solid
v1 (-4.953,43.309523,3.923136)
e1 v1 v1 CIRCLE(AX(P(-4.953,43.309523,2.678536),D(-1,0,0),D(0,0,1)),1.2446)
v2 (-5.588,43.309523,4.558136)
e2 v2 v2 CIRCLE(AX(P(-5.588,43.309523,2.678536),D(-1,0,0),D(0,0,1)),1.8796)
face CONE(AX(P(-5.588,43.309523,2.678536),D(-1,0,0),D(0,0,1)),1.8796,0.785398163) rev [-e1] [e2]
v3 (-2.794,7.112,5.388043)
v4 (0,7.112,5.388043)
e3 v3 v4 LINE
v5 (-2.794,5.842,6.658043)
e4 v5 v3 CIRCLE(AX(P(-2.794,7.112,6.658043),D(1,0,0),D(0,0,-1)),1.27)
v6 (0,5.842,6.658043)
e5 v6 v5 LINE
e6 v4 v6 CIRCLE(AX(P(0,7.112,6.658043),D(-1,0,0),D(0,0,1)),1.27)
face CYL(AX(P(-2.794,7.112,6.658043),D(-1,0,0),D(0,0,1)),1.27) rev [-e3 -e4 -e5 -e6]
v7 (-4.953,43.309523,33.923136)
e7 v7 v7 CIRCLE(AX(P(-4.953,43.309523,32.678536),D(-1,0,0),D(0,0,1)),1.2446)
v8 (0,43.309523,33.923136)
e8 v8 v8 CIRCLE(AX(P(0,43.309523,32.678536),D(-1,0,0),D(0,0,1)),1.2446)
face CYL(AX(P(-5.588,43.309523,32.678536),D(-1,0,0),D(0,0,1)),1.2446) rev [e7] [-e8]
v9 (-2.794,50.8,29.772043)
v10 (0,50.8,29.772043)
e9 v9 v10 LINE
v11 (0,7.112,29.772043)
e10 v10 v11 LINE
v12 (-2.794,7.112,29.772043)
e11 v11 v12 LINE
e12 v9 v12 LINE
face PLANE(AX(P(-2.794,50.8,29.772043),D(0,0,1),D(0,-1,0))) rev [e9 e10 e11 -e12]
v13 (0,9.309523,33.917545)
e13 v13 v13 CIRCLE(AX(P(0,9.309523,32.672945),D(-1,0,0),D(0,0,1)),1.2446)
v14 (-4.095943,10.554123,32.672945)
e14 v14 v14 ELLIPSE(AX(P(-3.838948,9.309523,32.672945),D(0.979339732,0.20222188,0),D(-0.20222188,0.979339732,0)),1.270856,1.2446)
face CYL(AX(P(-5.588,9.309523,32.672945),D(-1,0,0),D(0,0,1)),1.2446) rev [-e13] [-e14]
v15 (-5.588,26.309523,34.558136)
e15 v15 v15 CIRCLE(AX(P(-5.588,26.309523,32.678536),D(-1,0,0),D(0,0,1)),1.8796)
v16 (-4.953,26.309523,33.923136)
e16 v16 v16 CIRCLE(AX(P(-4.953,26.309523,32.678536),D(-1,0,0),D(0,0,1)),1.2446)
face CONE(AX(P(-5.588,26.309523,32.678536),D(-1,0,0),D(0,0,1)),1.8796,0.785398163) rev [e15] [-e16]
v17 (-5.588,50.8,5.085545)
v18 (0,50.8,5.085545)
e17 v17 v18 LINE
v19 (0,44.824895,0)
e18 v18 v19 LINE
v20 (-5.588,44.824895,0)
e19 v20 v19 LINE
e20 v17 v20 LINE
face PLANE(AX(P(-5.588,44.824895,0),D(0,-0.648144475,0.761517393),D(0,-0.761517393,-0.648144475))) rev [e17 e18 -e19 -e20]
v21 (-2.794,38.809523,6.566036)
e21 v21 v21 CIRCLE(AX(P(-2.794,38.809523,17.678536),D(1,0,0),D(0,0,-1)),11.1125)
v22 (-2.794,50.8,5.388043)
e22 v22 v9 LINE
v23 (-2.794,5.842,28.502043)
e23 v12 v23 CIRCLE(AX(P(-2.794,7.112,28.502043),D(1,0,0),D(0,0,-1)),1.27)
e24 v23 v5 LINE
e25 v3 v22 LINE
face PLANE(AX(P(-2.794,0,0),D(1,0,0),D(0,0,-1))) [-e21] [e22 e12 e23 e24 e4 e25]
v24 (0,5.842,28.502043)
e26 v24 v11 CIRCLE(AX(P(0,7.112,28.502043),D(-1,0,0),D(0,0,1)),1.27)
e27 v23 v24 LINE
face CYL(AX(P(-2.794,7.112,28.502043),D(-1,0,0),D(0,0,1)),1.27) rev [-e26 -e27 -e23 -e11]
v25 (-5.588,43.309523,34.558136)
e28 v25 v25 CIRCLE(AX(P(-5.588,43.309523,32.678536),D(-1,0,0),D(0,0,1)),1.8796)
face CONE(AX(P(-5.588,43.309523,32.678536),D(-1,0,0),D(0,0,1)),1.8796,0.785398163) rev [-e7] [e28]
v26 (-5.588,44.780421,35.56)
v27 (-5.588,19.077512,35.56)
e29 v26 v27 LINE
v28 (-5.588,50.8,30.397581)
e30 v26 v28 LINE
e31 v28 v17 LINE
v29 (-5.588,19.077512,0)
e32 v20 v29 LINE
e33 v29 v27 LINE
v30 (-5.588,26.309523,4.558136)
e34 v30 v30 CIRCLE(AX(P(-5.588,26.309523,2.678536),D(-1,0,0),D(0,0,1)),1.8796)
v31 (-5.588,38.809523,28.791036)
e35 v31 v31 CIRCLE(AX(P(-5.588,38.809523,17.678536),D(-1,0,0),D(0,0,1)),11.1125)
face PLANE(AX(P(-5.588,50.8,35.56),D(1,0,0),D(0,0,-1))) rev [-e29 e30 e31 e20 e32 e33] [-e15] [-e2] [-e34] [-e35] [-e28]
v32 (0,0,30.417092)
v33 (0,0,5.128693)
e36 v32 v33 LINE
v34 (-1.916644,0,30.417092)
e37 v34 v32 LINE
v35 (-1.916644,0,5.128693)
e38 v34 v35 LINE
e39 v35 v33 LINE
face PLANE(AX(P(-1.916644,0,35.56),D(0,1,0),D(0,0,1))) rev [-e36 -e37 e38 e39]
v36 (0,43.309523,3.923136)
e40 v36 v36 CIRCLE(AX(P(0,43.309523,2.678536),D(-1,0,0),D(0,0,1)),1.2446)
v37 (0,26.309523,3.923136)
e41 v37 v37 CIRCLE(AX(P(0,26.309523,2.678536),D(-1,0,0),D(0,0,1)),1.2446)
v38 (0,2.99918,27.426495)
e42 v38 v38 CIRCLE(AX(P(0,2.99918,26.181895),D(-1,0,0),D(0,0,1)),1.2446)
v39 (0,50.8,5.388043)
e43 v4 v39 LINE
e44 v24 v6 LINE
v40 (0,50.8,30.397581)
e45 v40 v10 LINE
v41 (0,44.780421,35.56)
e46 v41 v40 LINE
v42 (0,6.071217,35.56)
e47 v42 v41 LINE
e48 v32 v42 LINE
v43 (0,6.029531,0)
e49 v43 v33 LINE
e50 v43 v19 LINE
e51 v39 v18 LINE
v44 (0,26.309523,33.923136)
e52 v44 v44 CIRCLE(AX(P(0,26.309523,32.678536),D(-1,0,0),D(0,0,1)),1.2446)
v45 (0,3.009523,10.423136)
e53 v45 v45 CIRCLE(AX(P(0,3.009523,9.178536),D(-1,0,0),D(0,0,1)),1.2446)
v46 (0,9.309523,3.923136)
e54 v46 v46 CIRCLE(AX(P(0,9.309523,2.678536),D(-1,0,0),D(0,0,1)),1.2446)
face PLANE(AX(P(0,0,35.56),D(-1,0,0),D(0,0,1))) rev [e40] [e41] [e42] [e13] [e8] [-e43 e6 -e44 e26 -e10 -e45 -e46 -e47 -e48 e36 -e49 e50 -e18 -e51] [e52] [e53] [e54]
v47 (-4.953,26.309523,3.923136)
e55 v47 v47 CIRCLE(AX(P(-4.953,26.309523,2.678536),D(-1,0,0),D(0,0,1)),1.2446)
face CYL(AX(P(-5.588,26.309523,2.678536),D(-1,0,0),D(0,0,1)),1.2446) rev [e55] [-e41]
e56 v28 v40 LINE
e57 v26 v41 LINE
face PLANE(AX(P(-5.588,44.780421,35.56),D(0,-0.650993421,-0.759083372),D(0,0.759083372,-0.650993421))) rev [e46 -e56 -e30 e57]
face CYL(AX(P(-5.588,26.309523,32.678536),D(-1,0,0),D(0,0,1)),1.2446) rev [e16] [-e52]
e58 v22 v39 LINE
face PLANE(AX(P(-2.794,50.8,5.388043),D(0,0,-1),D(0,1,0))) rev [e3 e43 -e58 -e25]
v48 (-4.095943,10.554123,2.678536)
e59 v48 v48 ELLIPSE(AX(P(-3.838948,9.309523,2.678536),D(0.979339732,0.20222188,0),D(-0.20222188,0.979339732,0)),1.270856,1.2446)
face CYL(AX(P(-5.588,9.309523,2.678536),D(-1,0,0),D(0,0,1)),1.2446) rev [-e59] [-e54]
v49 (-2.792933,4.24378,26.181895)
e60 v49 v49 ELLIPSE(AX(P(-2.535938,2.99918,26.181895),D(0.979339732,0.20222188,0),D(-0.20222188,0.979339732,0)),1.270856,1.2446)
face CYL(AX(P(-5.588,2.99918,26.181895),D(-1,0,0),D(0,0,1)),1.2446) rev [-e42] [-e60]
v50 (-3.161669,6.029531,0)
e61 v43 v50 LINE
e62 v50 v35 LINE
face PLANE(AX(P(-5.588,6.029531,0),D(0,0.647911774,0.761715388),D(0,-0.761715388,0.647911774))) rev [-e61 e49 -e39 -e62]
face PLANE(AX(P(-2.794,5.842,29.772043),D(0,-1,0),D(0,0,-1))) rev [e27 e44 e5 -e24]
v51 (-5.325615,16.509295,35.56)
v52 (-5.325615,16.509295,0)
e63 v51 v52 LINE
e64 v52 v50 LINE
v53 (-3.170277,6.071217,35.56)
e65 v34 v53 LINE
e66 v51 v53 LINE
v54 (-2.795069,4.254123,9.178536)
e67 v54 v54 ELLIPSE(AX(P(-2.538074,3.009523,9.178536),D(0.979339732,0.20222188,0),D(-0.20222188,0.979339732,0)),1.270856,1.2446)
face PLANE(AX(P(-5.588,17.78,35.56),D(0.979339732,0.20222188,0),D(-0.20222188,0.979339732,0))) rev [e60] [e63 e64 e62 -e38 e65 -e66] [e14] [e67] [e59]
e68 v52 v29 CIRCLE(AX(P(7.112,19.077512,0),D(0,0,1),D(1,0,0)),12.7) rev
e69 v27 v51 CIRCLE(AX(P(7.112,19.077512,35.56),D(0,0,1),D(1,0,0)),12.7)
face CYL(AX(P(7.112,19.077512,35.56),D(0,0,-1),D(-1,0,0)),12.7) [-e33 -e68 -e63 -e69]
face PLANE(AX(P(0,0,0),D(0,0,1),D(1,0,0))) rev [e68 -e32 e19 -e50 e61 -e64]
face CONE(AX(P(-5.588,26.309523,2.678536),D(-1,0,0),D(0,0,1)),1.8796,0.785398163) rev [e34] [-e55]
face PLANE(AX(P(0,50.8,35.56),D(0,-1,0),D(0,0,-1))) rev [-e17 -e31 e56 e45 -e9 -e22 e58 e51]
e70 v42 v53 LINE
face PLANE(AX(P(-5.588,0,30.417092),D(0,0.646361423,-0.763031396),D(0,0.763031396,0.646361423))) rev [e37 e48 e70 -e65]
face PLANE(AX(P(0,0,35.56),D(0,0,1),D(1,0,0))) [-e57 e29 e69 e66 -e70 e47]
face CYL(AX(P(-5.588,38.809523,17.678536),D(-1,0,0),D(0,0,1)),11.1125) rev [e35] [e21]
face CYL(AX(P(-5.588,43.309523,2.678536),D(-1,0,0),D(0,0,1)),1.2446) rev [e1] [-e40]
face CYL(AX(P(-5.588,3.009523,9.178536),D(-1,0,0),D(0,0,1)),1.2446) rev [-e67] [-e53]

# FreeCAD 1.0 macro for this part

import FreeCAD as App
import Part
import Sketcher

V = App.Vector
Q = App.Units.Quantity


def edges_at(feature, points):
    """Names of the edges that pass closest to the given points."""
    edges = feature.Shape.Edges
    near = lambda p: min(range(len(edges)), key=lambda i: edges[i].distToShape(Part.Vertex(*p))[0])
    return sorted({f"Edge{near(p) + 1}" for p in points})

doc = App.newDocument("Part")
params = doc.addObject("Spreadsheet::Sheet", "Params")
for row, (alias, value) in enumerate([
    ("sketch1_height", "2 in"),
    ("sketch1_height2", "1.3 in"),
    ("sketch1_width", "0.22 in"),
    ("pad1_length", "1.4 in"),
    ("fillet_radius", "0.5 in"),
    ("sketch2_width", "1.77 in"),
    ("sketch2_height", "0.96 in"),
    ("pocket1_length", "0.11 in"),
    ("fillet2_radius", "0.05 in"),
    ("sketch5_diameter", "0.875 in"),
    ("hole_diameter", "0.875 in"),
    ("sketch6_diameter", "0.098 in"),
    ("hole2_diameter", "0.098 in"),
    ("hole2_csink_diameter", "0.148 in"),
], start=1):
    params.set(f"A{row}", alias)
    params.set(f"B{row}", "=" + value)
    params.setAlias(f"B{row}", alias)

body = doc.addObject("PartDesign::Body", "Body")

sketch1 = body.newObject("Sketcher::SketchObject", "Sketch")
sketch1.AttachmentSupport = (doc.getObject("XY_Plane"), [""])
sketch1.MapMode = "FlatFace"
sketch1.addGeometry([
    Part.LineSegment(V(0, 0, 0), V(0, 50.8, 0)),
    Part.LineSegment(V(0, 50.8, 0), V(-5.6, 50.8, 0)),
    Part.LineSegment(V(-5.6, 50.8, 0), V(-5.6, 17.8, 0)),
    Part.LineSegment(V(-5.6, 17.8, 0), V(-1.9, 0, 0)),
    Part.LineSegment(V(-1.9, 0, 0), V(0, 0, 0)),
], False)
sketch1.addConstraint([
    Sketcher.Constraint("Coincident", 0, 2, 1, 1),
    Sketcher.Constraint("Coincident", 1, 2, 2, 1),
    Sketcher.Constraint("Coincident", 2, 2, 3, 1),
    Sketcher.Constraint("Coincident", 3, 2, 4, 1),
    Sketcher.Constraint("Coincident", 4, 2, 0, 1),
    Sketcher.Constraint("Vertical", 0),
    Sketcher.Constraint("Horizontal", 1),
    Sketcher.Constraint("Vertical", 2),
    Sketcher.Constraint("Horizontal", 4),
    Sketcher.Constraint("Coincident", 4, 2, -1, 1),
    Sketcher.Constraint("DistanceY", 0, 1, 0, 2, Q("2 in")),
    Sketcher.Constraint("DistanceY", 2, 2, 2, 1, Q("1.3 in")),
    Sketcher.Constraint("DistanceX", 1, 2, 1, 1, Q("0.22 in")),
    Sketcher.Constraint("Distance", 3, Q("18.155089 mm")),
])
sketch1.setExpression("Constraints[10]", "Params.sketch1_height")
sketch1.setExpression("Constraints[11]", "Params.sketch1_height2")
sketch1.setExpression("Constraints[12]", "Params.sketch1_width")
pad1 = body.newObject("PartDesign::Pad", "Pad")
pad1.Profile = sketch1
pad1.setExpression("Length", "Params.pad1_length")
doc.recompute()

fillet = body.newObject("PartDesign::Fillet", "Fillet")
fillet.Base = (pad1, edges_at(pad1, [(-5.588, 17.78, 17.78)]))
fillet.setExpression("Radius", "Params.fillet_radius")

sketch2 = body.newObject("Sketcher::SketchObject", "Sketch001")
sketch2.AttachmentSupport = (doc.getObject("YZ_Plane"), [""])
sketch2.MapMode = "FlatFace"
sketch2.addGeometry([
    Part.LineSegment(V(51, 30, 0), V(6, 30, 0)),
    Part.LineSegment(V(6, 30, 0), V(6, 5, 0)),
    Part.LineSegment(V(6, 5, 0), V(51, 5, 0)),
    Part.LineSegment(V(51, 5, 0), V(51, 30, 0)),
], False)
sketch2.addConstraint([
    Sketcher.Constraint("Coincident", 0, 2, 1, 1),
    Sketcher.Constraint("Coincident", 1, 2, 2, 1),
    Sketcher.Constraint("Coincident", 2, 2, 3, 1),
    Sketcher.Constraint("Coincident", 3, 2, 0, 1),
    Sketcher.Constraint("Horizontal", 0),
    Sketcher.Constraint("Vertical", 1),
    Sketcher.Constraint("Horizontal", 2),
    Sketcher.Constraint("Vertical", 3),
    Sketcher.Constraint("DistanceX", -1, 1, 2, 2, Q("2 in")),
    Sketcher.Constraint("DistanceX", 0, 2, 0, 1, Q("1.77 in")),
    Sketcher.Constraint("DistanceY", 1, 2, 1, 1, Q("0.96 in")),
    Sketcher.Constraint("DistanceY", -1, 1, 0, 2, Q("29.772043 mm")),
])
sketch2.setExpression("Constraints[9]", "Params.sketch2_width")
sketch2.setExpression("Constraints[10]", "Params.sketch2_height")
pocket1 = body.newObject("PartDesign::Pocket", "Pocket")
pocket1.Profile = sketch2
pocket1.setExpression("Length", "Params.pocket1_length")
doc.recompute()

fillet2 = body.newObject("PartDesign::Fillet", "Fillet001")
fillet2.Base = (pocket1, edges_at(pocket1, [(-1.397, 5.842, 29.772), (-1.397, 5.842, 5.388)]))
fillet2.setExpression("Radius", "Params.fillet2_radius")

sketch3 = body.newObject("Sketcher::SketchObject", "Sketch002")
sketch3.AttachmentSupport = (doc.getObject("YZ_Plane"), [""])
sketch3.MapMode = "FlatFace"
sketch3.addGeometry([
    Part.LineSegment(V(45, 36, 0), V(51, 30, 0)),
    Part.LineSegment(V(51, 30, 0), V(51, 36, 0)),
    Part.LineSegment(V(51, 36, 0), V(45, 36, 0)),
], False)
sketch3.addConstraint([
    Sketcher.Constraint("Coincident", 0, 2, 1, 1),
    Sketcher.Constraint("Coincident", 1, 2, 2, 1),
    Sketcher.Constraint("Coincident", 2, 2, 0, 1),
    Sketcher.Constraint("Vertical", 1),
    Sketcher.Constraint("Horizontal", 2),
    Sketcher.Constraint("DistanceX", -1, 1, 0, 2, Q("2 in")),
    Sketcher.Constraint("DistanceY", -1, 1, 1, 2, Q("1.4 in")),
    Sketcher.Constraint("DistanceX", 2, 2, 2, 1, Q("6.019579 mm")),
    Sketcher.Constraint("DistanceY", 1, 1, 1, 2, Q("5.162419 mm")),
])
pocket2 = body.newObject("PartDesign::Pocket", "Pocket001")
pocket2.Profile = sketch3
pocket2.Type = "ThroughAll"

sketch4 = body.newObject("Sketcher::SketchObject", "Sketch003")
sketch4.AttachmentSupport = (doc.getObject("YZ_Plane"), [""])
sketch4.MapMode = "FlatFace"
sketch4.addGeometry([
    Part.LineSegment(V(51, 0, 0), V(51, 5, 0)),
    Part.LineSegment(V(51, 5, 0), V(45, 0, 0)),
    Part.LineSegment(V(45, 0, 0), V(51, 0, 0)),
    Part.LineSegment(V(6, 0, 0), V(0, 5, 0)),
    Part.LineSegment(V(0, 5, 0), V(0, 0, 0)),
    Part.LineSegment(V(0, 0, 0), V(6, 0, 0)),
    Part.LineSegment(V(6, 36, 0), V(0, 36, 0)),
    Part.LineSegment(V(0, 36, 0), V(0, 30, 0)),
    Part.LineSegment(V(0, 30, 0), V(6, 36, 0)),
], False)
sketch4.addConstraint([
    Sketcher.Constraint("Coincident", 0, 2, 1, 1),
    Sketcher.Constraint("Coincident", 1, 2, 2, 1),
    Sketcher.Constraint("Coincident", 2, 2, 0, 1),
    Sketcher.Constraint("Coincident", 3, 2, 4, 1),
    Sketcher.Constraint("Coincident", 4, 2, 5, 1),
    Sketcher.Constraint("Coincident", 5, 2, 3, 1),
    Sketcher.Constraint("Coincident", 6, 2, 7, 1),
    Sketcher.Constraint("Coincident", 7, 2, 8, 1),
    Sketcher.Constraint("Coincident", 8, 2, 6, 1),
    Sketcher.Constraint("Vertical", 0),
    Sketcher.Constraint("Horizontal", 2),
    Sketcher.Constraint("Vertical", 4),
    Sketcher.Constraint("Horizontal", 5),
    Sketcher.Constraint("Horizontal", 6),
    Sketcher.Constraint("Vertical", 7),
    Sketcher.Constraint("Coincident", 4, 2, -1, 1),
    Sketcher.Constraint("PointOnObject", 1, 2, -1),
    Sketcher.Constraint("PointOnObject", 6, 2, -2),
    Sketcher.Constraint("DistanceX", -1, 1, 0, 2, Q("2 in")),
    Sketcher.Constraint("DistanceY", -1, 1, 6, 2, Q("1.4 in")),
    Sketcher.Constraint("DistanceX", 5, 1, 5, 2, Q("6.029531 mm")),
    Sketcher.Constraint("DistanceY", 7, 2, 7, 1, Q("5.142908 mm")),
    Sketcher.Constraint("DistanceY", 3, 2, 7, 2, Q("25.288399 mm")),
    Sketcher.Constraint("DistanceX", 2, 1, 2, 2, Q("5.975105 mm")),
    Sketcher.Constraint("DistanceX", 6, 2, 6, 1, Q("6.071217 mm")),
    Sketcher.Constraint("DistanceY", 0, 1, 0, 2, Q("5.085545 mm")),
])
pocket3 = body.newObject("PartDesign::Pocket", "Pocket002")
pocket3.Profile = sketch4
pocket3.Type = "ThroughAll"

sketch5 = body.newObject("Sketcher::SketchObject", "Sketch004")
sketch5.AttachmentSupport = (doc.getObject("YZ_Plane"), [""])
sketch5.MapMode = "FlatFace"
sketch5.AttachmentOffset = App.Placement(V(0, 0, -0.22 * 25.4), App.Rotation())
sketch5.addGeometry(Part.Circle(V(39, 18, 0), V(0, 0, 1), 11), False)
sketch5.addConstraint([
    Sketcher.Constraint("Diameter", 0, Q("0.875 in")),
    Sketcher.Constraint("DistanceX", -1, 1, 0, 3, Q("38.809523 mm")),
    Sketcher.Constraint("DistanceY", -1, 1, 0, 3, Q("17.678536 mm")),
])
sketch5.setExpression("Constraints[0]", "Params.sketch5_diameter")
doc.recompute()
hole = body.newObject("PartDesign::Hole", "Hole")
hole.Profile = sketch5
hole.ThreadType = "None"
hole.setExpression("Diameter", "Params.hole_diameter")
hole.DepthType = "ThroughAll"
hole.Reversed = True

sketch6 = body.newObject("Sketcher::SketchObject", "Sketch005")
sketch6.AttachmentSupport = (doc.getObject("YZ_Plane"), [""])
sketch6.MapMode = "FlatFace"
sketch6.AttachmentOffset = App.Placement(V(0, 0, -0.22 * 25.4), App.Rotation())
sketch6.addGeometry([
    Part.Circle(V(43.3, 2.7, 0), V(0, 0, 1), 1.2),
    Part.Circle(V(26.3, 2.7, 0), V(0, 0, 1), 1.2),
    Part.Circle(V(9.3, 2.7, 0), V(0, 0, 1), 1.2),
    Part.Circle(V(3, 9.2, 0), V(0, 0, 1), 1.2),
    Part.Circle(V(3, 26.2, 0), V(0, 0, 1), 1.2),
    Part.Circle(V(9.3, 32.7, 0), V(0, 0, 1), 1.2),
    Part.Circle(V(26.3, 32.7, 0), V(0, 0, 1), 1.2),
    Part.Circle(V(43.3, 32.7, 0), V(0, 0, 1), 1.2),
], False)
sketch6.addConstraint([
    Sketcher.Constraint("Equal", 0, 1),
    Sketcher.Constraint("Equal", 1, 2),
    Sketcher.Constraint("Equal", 2, 3),
    Sketcher.Constraint("Equal", 3, 4),
    Sketcher.Constraint("Equal", 4, 5),
    Sketcher.Constraint("Equal", 5, 6),
    Sketcher.Constraint("Equal", 6, 7),
    Sketcher.Constraint("Horizontal", 0, 3, 1, 3),
    Sketcher.Constraint("Horizontal", 1, 3, 2, 3),
    Sketcher.Constraint("Horizontal", 6, 3, 7, 3),
    Sketcher.Constraint("Vertical", 2, 3, 5, 3),
    Sketcher.Constraint("Vertical", 1, 3, 6, 3),
    Sketcher.Constraint("Vertical", 0, 3, 7, 3),
    Sketcher.Constraint("Diameter", 0, Q("0.098 in")),
    Sketcher.Constraint("DistanceX", 1, 3, 0, 3, Q("17 mm")),
    Sketcher.Constraint("DistanceX", 2, 3, 1, 3, Q("17 mm")),
    Sketcher.Constraint("DistanceX", 3, 3, 2, 3, Q("6.3 mm")),
    Sketcher.Constraint("DistanceY", 2, 3, 3, 3, Q("6.5 mm")),
    Sketcher.Constraint("DistanceY", 1, 3, 6, 3, Q("30 mm")),
    Sketcher.Constraint("DistanceX", -1, 1, 4, 3, Q("2.99918 mm")),
    Sketcher.Constraint("DistanceY", 3, 3, 4, 3, Q("17.003359 mm")),
    Sketcher.Constraint("DistanceY", 4, 3, 5, 3, Q("6.49105 mm")),
    Sketcher.Constraint("DistanceX", -1, 1, 0, 3, Q("43.309523 mm")),
    Sketcher.Constraint("DistanceY", -1, 1, 0, 3, Q("2.678536 mm")),
])
sketch6.setExpression("Constraints[13]", "Params.sketch6_diameter")
doc.recompute()
hole2 = body.newObject("PartDesign::Hole", "Hole001")
hole2.Profile = sketch6
hole2.ThreadType = "None"
hole2.setExpression("Diameter", "Params.hole2_diameter")
hole2.DepthType = "ThroughAll"
hole2.HoleCutType = "Countersink"
hole2.setExpression("HoleCutDiameter", "Params.hole2_csink_diameter")
hole2.HoleCutCountersinkAngle = 90
hole2.Reversed = True

doc.recompute()
